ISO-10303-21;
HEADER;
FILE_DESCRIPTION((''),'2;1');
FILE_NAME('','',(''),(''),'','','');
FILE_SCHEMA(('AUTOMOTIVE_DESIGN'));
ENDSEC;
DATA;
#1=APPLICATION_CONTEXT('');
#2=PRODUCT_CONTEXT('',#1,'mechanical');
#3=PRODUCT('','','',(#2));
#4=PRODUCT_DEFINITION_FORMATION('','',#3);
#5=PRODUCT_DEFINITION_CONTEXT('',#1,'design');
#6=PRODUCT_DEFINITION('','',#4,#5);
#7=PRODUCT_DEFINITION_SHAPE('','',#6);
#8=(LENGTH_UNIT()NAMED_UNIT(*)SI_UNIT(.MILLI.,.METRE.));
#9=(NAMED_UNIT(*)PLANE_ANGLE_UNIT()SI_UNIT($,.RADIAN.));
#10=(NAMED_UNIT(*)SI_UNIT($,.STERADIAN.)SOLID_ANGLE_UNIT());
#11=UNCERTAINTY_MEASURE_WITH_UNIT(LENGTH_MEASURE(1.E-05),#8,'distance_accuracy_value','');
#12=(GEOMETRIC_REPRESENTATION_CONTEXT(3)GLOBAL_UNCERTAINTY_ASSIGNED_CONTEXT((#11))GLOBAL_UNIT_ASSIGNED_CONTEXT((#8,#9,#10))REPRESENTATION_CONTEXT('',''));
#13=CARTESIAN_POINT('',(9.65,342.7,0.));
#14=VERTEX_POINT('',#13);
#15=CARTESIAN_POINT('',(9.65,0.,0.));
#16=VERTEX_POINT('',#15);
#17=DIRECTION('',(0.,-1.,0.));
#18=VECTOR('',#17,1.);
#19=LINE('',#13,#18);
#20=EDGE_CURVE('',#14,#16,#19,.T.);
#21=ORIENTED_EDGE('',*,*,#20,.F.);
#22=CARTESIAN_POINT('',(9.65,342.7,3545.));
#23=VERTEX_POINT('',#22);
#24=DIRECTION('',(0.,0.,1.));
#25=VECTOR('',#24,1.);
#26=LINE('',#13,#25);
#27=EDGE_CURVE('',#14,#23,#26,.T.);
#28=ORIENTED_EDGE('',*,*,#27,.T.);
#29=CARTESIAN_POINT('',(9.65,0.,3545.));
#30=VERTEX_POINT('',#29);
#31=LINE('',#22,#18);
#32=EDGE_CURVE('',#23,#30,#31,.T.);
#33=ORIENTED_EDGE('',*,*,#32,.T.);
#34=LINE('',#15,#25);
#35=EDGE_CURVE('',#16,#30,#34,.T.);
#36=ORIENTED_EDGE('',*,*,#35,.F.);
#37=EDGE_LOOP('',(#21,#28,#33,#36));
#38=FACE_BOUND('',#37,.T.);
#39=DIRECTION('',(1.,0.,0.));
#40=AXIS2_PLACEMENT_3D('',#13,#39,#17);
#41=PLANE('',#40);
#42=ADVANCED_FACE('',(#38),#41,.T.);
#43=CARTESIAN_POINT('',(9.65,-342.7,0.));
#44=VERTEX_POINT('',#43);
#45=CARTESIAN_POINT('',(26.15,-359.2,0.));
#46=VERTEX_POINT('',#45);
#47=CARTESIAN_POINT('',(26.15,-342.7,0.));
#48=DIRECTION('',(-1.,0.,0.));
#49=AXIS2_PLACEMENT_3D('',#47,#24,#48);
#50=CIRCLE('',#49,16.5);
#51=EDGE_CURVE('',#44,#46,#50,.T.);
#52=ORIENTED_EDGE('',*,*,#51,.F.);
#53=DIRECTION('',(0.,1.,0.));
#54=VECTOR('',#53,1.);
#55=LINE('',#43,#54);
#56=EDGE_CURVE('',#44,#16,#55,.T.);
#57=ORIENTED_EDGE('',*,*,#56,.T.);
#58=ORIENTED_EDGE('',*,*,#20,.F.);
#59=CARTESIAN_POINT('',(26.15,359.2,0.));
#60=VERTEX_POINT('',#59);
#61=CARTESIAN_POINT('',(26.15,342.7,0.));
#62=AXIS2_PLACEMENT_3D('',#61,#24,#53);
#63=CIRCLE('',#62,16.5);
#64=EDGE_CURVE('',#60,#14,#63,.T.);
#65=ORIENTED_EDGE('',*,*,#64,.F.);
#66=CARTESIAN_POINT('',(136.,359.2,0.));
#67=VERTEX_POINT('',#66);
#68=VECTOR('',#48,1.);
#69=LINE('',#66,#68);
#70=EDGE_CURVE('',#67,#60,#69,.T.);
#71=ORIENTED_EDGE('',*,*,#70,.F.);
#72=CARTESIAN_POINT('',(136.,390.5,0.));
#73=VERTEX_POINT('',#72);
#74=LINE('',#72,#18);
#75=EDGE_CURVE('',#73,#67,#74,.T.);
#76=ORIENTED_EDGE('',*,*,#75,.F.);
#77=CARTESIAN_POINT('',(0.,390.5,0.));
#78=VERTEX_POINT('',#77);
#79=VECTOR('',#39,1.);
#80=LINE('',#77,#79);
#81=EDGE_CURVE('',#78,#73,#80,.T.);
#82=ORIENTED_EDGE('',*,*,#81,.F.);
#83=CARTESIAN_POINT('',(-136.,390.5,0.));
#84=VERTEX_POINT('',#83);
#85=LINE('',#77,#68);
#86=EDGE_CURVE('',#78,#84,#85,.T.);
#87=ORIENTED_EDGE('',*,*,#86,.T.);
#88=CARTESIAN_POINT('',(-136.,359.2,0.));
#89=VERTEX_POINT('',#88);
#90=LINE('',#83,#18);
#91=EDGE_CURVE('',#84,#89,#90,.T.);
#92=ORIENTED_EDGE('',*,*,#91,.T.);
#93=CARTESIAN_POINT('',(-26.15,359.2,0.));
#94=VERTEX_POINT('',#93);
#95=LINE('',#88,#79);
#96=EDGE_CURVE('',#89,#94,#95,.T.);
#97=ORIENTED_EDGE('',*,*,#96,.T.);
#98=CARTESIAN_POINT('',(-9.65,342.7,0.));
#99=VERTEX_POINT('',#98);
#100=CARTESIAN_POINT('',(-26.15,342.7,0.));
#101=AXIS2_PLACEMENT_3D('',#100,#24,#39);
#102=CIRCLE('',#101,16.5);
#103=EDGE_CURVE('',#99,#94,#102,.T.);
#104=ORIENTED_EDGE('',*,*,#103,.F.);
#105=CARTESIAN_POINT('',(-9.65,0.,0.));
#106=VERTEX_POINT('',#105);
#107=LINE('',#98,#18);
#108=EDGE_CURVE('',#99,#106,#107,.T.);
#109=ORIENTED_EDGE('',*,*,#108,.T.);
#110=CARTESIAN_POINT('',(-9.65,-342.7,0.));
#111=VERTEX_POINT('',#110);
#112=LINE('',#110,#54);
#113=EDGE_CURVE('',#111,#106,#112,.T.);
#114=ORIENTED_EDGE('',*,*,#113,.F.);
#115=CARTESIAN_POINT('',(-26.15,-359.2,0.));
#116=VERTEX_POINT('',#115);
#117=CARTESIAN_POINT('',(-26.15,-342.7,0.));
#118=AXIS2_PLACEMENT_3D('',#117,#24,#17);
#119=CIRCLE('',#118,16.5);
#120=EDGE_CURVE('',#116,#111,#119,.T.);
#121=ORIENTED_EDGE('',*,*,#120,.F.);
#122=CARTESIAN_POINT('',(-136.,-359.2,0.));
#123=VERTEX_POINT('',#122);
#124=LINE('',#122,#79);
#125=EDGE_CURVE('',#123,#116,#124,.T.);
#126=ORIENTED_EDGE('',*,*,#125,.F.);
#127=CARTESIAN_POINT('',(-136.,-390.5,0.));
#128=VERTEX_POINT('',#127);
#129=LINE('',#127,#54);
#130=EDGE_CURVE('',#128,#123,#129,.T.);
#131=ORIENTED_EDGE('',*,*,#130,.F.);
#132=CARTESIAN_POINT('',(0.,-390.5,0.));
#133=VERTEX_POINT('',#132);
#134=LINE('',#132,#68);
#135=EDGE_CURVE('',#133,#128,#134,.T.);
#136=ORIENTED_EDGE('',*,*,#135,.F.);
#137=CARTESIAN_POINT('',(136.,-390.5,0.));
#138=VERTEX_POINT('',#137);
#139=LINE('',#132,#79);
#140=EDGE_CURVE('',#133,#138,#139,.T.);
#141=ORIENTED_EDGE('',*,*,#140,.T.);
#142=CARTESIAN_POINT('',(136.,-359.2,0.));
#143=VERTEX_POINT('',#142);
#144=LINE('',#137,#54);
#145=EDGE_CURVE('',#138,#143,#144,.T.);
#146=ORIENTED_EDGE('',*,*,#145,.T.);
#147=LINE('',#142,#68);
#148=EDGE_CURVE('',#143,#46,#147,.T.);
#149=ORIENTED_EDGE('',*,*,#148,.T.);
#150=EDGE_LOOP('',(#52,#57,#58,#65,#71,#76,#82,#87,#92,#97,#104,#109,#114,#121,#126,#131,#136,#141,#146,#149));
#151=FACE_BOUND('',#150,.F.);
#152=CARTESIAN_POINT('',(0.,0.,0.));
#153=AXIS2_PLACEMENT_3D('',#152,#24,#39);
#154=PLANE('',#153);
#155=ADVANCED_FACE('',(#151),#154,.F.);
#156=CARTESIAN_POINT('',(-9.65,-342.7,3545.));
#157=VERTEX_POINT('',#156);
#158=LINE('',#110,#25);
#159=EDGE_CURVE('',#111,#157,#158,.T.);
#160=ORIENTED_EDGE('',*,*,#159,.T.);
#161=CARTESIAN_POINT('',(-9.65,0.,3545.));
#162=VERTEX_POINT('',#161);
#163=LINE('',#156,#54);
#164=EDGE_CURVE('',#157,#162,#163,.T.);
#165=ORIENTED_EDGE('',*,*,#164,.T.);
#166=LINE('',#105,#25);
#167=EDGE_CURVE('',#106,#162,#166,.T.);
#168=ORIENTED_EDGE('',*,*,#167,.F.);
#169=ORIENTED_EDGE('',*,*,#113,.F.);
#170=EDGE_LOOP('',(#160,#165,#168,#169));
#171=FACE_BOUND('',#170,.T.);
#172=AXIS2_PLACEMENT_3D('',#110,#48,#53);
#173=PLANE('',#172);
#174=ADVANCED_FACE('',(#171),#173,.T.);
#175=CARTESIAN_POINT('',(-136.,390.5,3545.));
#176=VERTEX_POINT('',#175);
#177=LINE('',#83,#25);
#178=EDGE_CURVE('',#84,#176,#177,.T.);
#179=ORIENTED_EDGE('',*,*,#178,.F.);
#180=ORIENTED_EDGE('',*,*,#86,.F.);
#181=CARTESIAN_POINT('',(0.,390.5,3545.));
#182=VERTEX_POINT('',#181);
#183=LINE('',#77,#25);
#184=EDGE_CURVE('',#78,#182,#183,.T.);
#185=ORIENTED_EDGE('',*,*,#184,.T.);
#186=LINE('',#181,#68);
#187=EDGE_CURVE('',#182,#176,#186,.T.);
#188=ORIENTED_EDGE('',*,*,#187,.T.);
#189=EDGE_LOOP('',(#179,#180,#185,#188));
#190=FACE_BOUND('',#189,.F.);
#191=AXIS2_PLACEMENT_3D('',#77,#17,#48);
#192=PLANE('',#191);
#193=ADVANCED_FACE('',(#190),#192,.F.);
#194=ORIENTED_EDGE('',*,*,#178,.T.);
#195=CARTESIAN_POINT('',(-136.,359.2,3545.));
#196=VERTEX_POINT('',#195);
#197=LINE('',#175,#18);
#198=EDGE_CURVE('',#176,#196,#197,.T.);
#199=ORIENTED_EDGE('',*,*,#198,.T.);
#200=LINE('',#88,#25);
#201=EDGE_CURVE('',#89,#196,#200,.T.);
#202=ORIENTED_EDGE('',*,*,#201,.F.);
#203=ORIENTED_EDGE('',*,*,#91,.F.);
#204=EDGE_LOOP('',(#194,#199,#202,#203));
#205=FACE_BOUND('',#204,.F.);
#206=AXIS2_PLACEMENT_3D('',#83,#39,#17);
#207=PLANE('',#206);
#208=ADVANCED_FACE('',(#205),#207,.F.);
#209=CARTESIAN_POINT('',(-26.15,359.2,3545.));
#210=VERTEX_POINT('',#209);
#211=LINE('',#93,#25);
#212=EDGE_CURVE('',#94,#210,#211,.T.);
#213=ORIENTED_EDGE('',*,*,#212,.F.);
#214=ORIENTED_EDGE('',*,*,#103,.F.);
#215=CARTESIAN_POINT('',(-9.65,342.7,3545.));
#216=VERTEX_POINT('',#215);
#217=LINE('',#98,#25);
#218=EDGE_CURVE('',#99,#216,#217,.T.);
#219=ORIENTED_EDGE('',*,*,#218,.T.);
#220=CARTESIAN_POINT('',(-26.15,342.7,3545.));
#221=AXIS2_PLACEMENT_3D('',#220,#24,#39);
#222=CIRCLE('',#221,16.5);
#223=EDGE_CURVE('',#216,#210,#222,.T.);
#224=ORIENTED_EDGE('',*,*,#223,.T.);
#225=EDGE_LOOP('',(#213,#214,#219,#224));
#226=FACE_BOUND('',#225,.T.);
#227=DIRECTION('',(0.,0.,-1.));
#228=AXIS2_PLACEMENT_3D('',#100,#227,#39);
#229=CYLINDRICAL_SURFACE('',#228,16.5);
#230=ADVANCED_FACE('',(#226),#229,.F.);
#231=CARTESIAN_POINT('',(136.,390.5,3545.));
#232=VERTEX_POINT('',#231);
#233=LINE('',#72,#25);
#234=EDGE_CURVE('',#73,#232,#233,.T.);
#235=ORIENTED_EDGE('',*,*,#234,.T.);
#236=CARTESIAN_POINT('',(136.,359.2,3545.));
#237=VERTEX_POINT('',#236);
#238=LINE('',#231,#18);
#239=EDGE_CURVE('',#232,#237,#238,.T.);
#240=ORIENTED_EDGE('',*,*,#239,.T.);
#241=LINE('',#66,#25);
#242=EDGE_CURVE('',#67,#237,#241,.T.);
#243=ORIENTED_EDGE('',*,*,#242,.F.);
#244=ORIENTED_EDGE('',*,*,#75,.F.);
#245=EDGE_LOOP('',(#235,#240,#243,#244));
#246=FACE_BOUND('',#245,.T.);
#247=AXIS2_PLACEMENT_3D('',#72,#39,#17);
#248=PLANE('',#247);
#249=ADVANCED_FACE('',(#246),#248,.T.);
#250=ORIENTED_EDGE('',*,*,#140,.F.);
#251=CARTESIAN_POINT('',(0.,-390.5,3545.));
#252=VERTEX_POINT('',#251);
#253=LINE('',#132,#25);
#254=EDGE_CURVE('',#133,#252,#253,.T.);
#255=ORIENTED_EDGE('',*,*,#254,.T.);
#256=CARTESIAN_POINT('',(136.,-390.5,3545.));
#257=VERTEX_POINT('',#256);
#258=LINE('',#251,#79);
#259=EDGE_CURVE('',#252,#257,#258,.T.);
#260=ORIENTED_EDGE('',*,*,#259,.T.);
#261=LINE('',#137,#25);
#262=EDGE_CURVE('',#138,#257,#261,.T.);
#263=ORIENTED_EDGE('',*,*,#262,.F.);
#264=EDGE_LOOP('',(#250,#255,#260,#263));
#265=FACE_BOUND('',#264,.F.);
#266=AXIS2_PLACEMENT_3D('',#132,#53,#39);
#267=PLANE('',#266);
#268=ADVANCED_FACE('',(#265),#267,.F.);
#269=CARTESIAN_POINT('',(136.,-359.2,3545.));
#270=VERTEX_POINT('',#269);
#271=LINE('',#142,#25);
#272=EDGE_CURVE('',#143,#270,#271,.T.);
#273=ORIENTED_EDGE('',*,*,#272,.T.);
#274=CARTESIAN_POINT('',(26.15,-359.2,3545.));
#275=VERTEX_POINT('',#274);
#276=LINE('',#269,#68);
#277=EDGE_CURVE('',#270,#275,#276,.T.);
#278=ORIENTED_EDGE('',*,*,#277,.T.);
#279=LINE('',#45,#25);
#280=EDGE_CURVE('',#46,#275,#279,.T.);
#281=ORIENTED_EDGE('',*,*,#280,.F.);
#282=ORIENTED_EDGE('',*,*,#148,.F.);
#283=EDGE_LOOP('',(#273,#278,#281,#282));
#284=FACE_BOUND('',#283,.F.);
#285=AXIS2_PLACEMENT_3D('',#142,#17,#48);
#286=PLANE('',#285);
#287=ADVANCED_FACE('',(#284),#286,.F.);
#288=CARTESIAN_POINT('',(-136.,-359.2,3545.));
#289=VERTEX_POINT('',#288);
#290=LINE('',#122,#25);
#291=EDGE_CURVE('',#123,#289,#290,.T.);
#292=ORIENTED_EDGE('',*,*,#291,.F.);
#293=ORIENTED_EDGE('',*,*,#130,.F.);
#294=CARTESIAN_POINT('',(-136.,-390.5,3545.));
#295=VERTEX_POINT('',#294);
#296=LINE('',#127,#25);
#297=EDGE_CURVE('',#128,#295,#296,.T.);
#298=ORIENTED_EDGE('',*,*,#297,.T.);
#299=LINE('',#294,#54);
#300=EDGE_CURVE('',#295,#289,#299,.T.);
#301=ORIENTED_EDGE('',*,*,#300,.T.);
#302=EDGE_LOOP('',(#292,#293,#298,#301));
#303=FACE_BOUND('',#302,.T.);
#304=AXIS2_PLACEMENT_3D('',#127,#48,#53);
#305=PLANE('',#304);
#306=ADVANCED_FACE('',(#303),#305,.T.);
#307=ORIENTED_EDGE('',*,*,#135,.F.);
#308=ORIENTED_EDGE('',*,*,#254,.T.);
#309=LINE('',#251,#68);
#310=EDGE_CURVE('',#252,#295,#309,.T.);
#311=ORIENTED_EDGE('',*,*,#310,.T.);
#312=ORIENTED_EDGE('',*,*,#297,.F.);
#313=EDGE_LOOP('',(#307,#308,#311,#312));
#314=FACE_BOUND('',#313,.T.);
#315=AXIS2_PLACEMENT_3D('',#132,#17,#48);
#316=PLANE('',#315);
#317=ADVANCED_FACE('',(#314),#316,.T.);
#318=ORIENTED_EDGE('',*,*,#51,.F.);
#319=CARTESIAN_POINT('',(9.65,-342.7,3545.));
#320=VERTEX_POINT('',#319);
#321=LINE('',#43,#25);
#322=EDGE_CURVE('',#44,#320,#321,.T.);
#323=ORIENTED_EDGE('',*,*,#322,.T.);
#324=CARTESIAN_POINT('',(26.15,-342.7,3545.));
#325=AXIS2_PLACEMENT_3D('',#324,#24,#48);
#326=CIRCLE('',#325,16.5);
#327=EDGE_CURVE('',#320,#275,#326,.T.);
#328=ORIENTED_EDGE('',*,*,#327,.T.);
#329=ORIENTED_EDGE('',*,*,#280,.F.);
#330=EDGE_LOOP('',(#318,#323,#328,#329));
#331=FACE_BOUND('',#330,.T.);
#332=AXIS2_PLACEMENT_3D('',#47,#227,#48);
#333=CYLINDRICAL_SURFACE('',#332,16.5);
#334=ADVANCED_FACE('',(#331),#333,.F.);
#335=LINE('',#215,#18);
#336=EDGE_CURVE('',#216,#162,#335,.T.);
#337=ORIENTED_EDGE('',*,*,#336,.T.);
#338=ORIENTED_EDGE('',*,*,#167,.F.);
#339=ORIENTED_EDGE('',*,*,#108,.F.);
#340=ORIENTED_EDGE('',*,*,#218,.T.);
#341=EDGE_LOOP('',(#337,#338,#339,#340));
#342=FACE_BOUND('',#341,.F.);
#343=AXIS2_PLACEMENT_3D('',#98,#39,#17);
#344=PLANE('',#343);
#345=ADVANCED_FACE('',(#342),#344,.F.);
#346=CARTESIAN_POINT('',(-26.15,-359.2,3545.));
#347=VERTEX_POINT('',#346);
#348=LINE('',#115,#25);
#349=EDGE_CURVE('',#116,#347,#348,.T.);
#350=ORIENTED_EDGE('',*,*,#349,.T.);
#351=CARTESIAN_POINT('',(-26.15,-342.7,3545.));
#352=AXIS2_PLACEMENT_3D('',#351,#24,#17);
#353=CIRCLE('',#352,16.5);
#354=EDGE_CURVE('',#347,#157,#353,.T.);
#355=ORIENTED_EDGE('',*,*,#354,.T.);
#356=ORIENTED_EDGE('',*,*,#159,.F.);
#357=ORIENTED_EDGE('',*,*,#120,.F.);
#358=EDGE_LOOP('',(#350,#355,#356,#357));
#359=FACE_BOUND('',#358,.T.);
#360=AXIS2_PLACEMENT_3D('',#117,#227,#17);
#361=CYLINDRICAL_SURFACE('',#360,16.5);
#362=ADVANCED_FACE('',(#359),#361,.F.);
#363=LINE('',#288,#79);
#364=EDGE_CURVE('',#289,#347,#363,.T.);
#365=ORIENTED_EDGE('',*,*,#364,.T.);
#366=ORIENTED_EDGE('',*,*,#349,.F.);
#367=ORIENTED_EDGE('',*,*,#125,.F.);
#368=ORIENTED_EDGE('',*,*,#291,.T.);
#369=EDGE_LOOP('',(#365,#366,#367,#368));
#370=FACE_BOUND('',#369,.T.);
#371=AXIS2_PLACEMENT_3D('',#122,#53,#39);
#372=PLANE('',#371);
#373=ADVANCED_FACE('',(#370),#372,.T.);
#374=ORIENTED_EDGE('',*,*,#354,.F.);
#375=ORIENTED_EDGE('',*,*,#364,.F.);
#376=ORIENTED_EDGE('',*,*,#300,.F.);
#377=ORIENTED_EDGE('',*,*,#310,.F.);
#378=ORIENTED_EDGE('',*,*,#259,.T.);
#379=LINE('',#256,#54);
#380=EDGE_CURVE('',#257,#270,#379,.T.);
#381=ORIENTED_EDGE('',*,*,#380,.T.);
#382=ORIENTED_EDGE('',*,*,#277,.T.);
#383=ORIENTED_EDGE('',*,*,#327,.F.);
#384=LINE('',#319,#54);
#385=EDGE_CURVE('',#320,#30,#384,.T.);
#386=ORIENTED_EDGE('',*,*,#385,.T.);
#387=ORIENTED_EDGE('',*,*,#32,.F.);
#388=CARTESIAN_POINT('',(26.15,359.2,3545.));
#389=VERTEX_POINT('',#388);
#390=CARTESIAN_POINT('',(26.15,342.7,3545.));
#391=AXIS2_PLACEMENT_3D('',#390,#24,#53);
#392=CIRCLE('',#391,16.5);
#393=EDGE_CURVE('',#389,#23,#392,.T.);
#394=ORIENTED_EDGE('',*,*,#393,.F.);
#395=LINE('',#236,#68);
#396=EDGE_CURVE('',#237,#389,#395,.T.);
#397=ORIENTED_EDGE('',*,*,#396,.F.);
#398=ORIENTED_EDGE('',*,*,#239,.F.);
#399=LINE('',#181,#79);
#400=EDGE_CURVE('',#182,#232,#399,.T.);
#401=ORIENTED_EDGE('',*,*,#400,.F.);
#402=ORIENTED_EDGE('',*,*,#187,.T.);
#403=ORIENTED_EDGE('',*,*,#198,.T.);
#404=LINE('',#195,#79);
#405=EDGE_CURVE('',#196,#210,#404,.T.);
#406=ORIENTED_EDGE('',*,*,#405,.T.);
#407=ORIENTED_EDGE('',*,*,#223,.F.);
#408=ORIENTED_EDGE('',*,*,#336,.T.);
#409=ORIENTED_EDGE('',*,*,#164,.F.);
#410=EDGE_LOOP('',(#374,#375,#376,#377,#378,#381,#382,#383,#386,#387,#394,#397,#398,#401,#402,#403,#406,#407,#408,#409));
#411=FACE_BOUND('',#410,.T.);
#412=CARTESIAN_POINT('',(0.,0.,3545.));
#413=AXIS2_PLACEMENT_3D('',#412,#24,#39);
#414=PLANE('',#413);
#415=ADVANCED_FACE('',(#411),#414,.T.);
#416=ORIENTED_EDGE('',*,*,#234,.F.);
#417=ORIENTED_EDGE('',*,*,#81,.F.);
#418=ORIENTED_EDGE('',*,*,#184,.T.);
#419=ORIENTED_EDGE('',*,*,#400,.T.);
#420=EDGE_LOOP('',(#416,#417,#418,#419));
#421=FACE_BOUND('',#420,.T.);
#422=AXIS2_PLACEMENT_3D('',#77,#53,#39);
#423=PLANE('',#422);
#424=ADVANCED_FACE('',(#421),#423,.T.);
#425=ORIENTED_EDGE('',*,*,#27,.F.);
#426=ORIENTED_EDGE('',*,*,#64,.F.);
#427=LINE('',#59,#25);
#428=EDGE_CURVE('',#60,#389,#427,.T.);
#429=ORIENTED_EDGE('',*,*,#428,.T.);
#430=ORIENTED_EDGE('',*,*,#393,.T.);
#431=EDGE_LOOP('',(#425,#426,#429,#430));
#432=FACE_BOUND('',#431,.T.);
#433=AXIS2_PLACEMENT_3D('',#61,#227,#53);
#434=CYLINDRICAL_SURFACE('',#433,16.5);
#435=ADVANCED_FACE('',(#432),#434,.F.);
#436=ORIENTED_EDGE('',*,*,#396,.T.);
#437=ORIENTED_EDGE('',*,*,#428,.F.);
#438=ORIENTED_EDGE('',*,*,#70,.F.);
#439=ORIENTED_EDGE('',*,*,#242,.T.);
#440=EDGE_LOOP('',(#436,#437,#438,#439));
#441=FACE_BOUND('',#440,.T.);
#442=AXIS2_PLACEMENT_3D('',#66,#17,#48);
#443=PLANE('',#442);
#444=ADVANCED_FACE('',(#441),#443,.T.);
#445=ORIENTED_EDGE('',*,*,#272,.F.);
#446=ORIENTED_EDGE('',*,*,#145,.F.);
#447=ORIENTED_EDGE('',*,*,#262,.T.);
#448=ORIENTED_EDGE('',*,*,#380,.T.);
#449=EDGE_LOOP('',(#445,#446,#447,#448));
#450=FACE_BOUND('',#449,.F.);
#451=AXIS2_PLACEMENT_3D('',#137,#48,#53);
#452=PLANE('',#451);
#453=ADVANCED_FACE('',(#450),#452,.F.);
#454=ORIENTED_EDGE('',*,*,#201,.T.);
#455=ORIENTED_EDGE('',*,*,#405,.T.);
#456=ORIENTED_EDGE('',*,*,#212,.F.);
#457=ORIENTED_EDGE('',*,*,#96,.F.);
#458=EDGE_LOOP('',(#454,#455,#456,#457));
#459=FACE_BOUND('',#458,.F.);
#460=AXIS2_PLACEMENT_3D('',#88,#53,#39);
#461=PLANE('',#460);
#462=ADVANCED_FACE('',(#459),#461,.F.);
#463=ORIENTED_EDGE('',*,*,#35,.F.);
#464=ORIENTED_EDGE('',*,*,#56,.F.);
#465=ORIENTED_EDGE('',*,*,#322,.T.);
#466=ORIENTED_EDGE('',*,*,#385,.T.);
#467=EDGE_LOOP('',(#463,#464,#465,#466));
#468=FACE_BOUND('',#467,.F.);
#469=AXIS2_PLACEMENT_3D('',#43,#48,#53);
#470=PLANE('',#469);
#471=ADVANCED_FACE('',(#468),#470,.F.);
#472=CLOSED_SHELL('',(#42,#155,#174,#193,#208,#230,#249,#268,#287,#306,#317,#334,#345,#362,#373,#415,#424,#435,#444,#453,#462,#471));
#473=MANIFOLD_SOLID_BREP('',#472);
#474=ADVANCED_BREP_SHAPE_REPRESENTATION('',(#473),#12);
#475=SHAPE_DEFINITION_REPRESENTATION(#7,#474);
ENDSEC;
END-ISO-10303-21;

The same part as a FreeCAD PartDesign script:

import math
import FreeCAD as App
import Part
import Sketcher

doc = App.newDocument("Part")
body = doc.addObject("PartDesign::Body", "Body")

# Sketch on XY plane
sketch1 = body.newObject("Sketcher::SketchObject", "Sketch")
sketch1.AttachmentSupport = (doc.getObject("XY_Plane"), [""])
sketch1.MapMode = "FlatFace"
sketch1.addGeometry([
    Part.LineSegment(App.Vector(-136, -359.2, 0), App.Vector(-136, -390.5, 0)),  # 0
    Part.LineSegment(App.Vector(-136, -390.5, 0), App.Vector(136, -390.5, 0)),  # 1
    Part.LineSegment(App.Vector(136, -390.5, 0), App.Vector(136, -359.2, 0)),  # 2
    Part.LineSegment(App.Vector(136, -359.2, 0), App.Vector(26.15, -359.2, 0)),  # 3
    Part.ArcOfCircle(Part.Circle(App.Vector(26.15, -342.7, 0), App.Vector(0, 0, 1), 16.5), math.radians(180), math.radians(270)),  # 4
    Part.LineSegment(App.Vector(9.65, -342.7, 0), App.Vector(9.65, 342.7, 0)),  # 5
    Part.ArcOfCircle(Part.Circle(App.Vector(26.15, 342.7, 0), App.Vector(0, 0, 1), 16.5), math.radians(90), math.radians(180)),  # 6
    Part.LineSegment(App.Vector(26.15, 359.2, 0), App.Vector(136, 359.2, 0)),  # 7
    Part.LineSegment(App.Vector(136, 359.2, 0), App.Vector(136, 390.5, 0)),  # 8
    Part.LineSegment(App.Vector(136, 390.5, 0), App.Vector(-136, 390.5, 0)),  # 9
    Part.LineSegment(App.Vector(-136, 390.5, 0), App.Vector(-136, 359.2, 0)),  # 10
    Part.LineSegment(App.Vector(-136, 359.2, 0), App.Vector(-26.15, 359.2, 0)),  # 11
    Part.ArcOfCircle(Part.Circle(App.Vector(-26.15, 342.7, 0), App.Vector(0, 0, 1), 16.5), math.radians(0), math.radians(90)),  # 12
    Part.LineSegment(App.Vector(-9.65, 342.7, 0), App.Vector(-9.65, -342.7, 0)),  # 13
    Part.ArcOfCircle(Part.Circle(App.Vector(-26.15, -342.7, 0), App.Vector(0, 0, 1), 16.5), math.radians(-90), math.radians(0)),  # 14
    Part.LineSegment(App.Vector(-26.15, -359.2, 0), App.Vector(-136, -359.2, 0)),  # 15
], False)
sketch1.addConstraint([
    Sketcher.Constraint("Coincident", 0, 2, 1, 1),
    Sketcher.Constraint("Coincident", 1, 2, 2, 1),
    Sketcher.Constraint("Coincident", 2, 2, 3, 1),
    Sketcher.Constraint("Tangent", 3, 2, 4, 2),
    Sketcher.Constraint("Tangent", 4, 1, 5, 1),
    Sketcher.Constraint("Tangent", 5, 2, 6, 2),
    Sketcher.Constraint("Tangent", 6, 1, 7, 1),
    Sketcher.Constraint("Coincident", 7, 2, 8, 1),
    Sketcher.Constraint("Coincident", 8, 2, 9, 1),
    Sketcher.Constraint("Coincident", 9, 2, 10, 1),
    Sketcher.Constraint("Coincident", 10, 2, 11, 1),
    Sketcher.Constraint("Tangent", 11, 2, 12, 2),
    Sketcher.Constraint("Tangent", 12, 1, 13, 1),
    Sketcher.Constraint("Tangent", 13, 2, 14, 2),
    Sketcher.Constraint("Tangent", 14, 1, 15, 1),
    Sketcher.Constraint("Coincident", 15, 2, 0, 1),
    Sketcher.Constraint("Vertical", 0),
    Sketcher.Constraint("Horizontal", 1),
    Sketcher.Constraint("Vertical", 2),
    Sketcher.Constraint("Horizontal", 3),
    Sketcher.Constraint("Vertical", 5),
    Sketcher.Constraint("Horizontal", 7),
    Sketcher.Constraint("Vertical", 8),
    Sketcher.Constraint("Horizontal", 9),
    Sketcher.Constraint("Vertical", 10),
    Sketcher.Constraint("Horizontal", 11),
    Sketcher.Constraint("Vertical", 13),
    Sketcher.Constraint("Horizontal", 15),
    Sketcher.Constraint("Equal", 4, 6),
    Sketcher.Constraint("Equal", 6, 12),
    Sketcher.Constraint("Equal", 12, 14),
    Sketcher.Constraint("Symmetric", 4, 3, 12, 3, -1, 1),
    Sketcher.Constraint("Symmetric", 0, 2, 8, 2, -1, 1),
    Sketcher.Constraint("Symmetric", 7, 2, 10, 2, -2),
    Sketcher.Constraint("Symmetric", 2, 2, 15, 2, -2),
    Sketcher.Constraint("Radius", 4, 16.5),
    Sketcher.Constraint("DistanceY", 0, 2, 0, 1, 31.3),
    Sketcher.Constraint("DistanceX", 0, 2, -1, 1, 136.0),
    Sketcher.Constraint("DistanceY", 0, 2, -1, 1, 390.5),
    Sketcher.Constraint("DistanceX", -1, 1, 4, 1, 9.65),
])
pad1 = body.newObject("PartDesign::Pad", "Pad")
pad1.Profile = sketch1
pad1.Length = 3545

doc.recompute()
